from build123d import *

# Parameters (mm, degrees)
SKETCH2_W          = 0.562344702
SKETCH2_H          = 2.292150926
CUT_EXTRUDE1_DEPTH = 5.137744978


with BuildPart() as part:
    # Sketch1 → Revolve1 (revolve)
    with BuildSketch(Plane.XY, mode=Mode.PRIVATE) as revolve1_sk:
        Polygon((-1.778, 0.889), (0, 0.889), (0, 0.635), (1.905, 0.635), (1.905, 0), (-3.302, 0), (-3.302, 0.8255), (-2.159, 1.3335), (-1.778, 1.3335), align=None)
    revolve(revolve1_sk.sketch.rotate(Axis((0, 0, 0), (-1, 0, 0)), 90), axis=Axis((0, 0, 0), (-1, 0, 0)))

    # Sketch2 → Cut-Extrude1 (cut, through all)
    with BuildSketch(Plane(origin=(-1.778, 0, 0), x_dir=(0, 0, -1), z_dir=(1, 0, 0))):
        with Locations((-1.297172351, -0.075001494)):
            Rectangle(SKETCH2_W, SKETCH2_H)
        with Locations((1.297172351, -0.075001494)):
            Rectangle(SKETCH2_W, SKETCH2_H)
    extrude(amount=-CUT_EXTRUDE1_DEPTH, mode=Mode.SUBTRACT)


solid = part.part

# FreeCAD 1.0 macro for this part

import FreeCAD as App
import Part
import Sketcher
Q = App.Units.Quantity


def add_polygon(sketch, points):
    """Adds a closed chain of lines whose ends are joined by coincident constraints."""
    first, n = sketch.GeometryCount, len(points)
    for a, b in zip(points, points[1:] + points[:1]):
        sketch.addGeometry(Part.LineSegment(App.Vector(*a, 0), App.Vector(*b, 0)), False)
    for i in range(n):
        sketch.addConstraint(Sketcher.Constraint("Coincident", first + i, 2, first + (i + 1) % n, 1))

doc = App.newDocument("Part")
body = doc.addObject("PartDesign::Body", "Body")

# Sketch on XY plane
sketch1 = body.newObject("Sketcher::SketchObject", "Sketch")
sketch1.AttachmentSupport = (doc.getObject("XY_Plane"), [""])
sketch1.MapMode = "FlatFace"
add_polygon(sketch1, [(0, 0.889), (-1.778, 0.889), (-1.778, 1.3335), (-2.159, 1.3335), (-3.302, 0.8255), (-3.302, 0), (1.905, 0), (1.905, 0.635), (0, 0.635)])  # lines 0-8
sketch1.addConstraint(Sketcher.Constraint("Horizontal", 0))
sketch1.addConstraint(Sketcher.Constraint("Vertical", 1))
sketch1.addConstraint(Sketcher.Constraint("Horizontal", 2))
sketch1.addConstraint(Sketcher.Constraint("Vertical", 4))
sketch1.addConstraint(Sketcher.Constraint("Horizontal", 5))
sketch1.addConstraint(Sketcher.Constraint("Vertical", 6))
sketch1.addConstraint(Sketcher.Constraint("Horizontal", 7))
sketch1.addConstraint(Sketcher.Constraint("Vertical", 8))
sketch1.addConstraint(Sketcher.Constraint("PointOnObject", 4, 2, -1))
sketch1.addConstraint(Sketcher.Constraint("PointOnObject", 7, 2, -2))
sketch1.addConstraint(Sketcher.Constraint("DistanceX", 0, 2, 0, 1, Q("0.07 in")))
sketch1.addConstraint(Sketcher.Constraint("DistanceY", 8, 1, 8, 2, Q("0.01 in")))
sketch1.addConstraint(Sketcher.Constraint("DistanceX", 2, 2, 2, 1, Q("0.015 in")))
sketch1.addConstraint(Sketcher.Constraint("DistanceX", 5, 1, 5, 2, Q("0.205 in")))
sketch1.addConstraint(Sketcher.Constraint("DistanceX", 7, 2, 7, 1, Q("0.075 in")))
sketch1.addConstraint(Sketcher.Constraint("DistanceY", 6, 1, 6, 2, Q("0.025 in")))
sketch1.addConstraint(Sketcher.Constraint("DistanceY", 3, 2, 2, 2, Q("0.02 in")))
sketch1.addConstraint(Sketcher.Constraint("DistanceY", 1, 1, 1, 2, Q("0.0175 in")))
revolution = body.newObject("PartDesign::Revolution", "Revolution")
revolution.Profile = sketch1
revolution.ReferenceAxis = (sketch1, ["H_Axis"])
revolution.Angle = 360

# Sketch on YZ plane
sketch2 = body.newObject("Sketcher::SketchObject", "Sketch001")
sketch2.AttachmentSupport = (doc.getObject("YZ_Plane"), [""])
sketch2.MapMode = "FlatFace"
sketch2.AttachmentOffset = App.Placement(App.Vector(0, 0, -0.07 * 25.4), App.Rotation())
add_polygon(sketch2, [(1.071074, 1.578345), (-1.221077, 1.578345), (-1.221077, 1.016), (1.071074, 1.016)])  # lines 0-3
add_polygon(sketch2, [(1.071074, -1.016), (-1.221077, -1.016), (-1.221077, -1.578345), (1.071074, -1.578345)])  # lines 4-7
sketch2.addConstraint(Sketcher.Constraint("Horizontal", 0))
sketch2.addConstraint(Sketcher.Constraint("Vertical", 1))
sketch2.addConstraint(Sketcher.Constraint("Horizontal", 2))
sketch2.addConstraint(Sketcher.Constraint("Vertical", 3))
sketch2.addConstraint(Sketcher.Constraint("Horizontal", 4))
sketch2.addConstraint(Sketcher.Constraint("Vertical", 5))
sketch2.addConstraint(Sketcher.Constraint("Horizontal", 6))
sketch2.addConstraint(Sketcher.Constraint("Vertical", 7))
sketch2.addConstraint(Sketcher.Constraint("Symmetric", 1, 2, 4, 2, -1))
sketch2.addConstraint(Sketcher.Constraint("Symmetric", 3, 2, 6, 2, -1))
sketch2.addConstraint(Sketcher.Constraint("DistanceY", -1, 1, 1, 2, Q("0.04 in")))
sketch2.addConstraint(Sketcher.Constraint("DistanceX", 0, 2, 0, 1, Q("2.292151 mm")))
sketch2.addConstraint(Sketcher.Constraint("DistanceY", 1, 2, 1, 1, Q("0.562345 mm")))
sketch2.addConstraint(Sketcher.Constraint("DistanceX", 0, 2, -1, 1, Q("1.221077 mm")))
pocket1 = body.newObject("PartDesign::Pocket", "Pocket")
pocket1.Profile = sketch2
pocket1.Type = "ThroughAll"

doc.recompute()
